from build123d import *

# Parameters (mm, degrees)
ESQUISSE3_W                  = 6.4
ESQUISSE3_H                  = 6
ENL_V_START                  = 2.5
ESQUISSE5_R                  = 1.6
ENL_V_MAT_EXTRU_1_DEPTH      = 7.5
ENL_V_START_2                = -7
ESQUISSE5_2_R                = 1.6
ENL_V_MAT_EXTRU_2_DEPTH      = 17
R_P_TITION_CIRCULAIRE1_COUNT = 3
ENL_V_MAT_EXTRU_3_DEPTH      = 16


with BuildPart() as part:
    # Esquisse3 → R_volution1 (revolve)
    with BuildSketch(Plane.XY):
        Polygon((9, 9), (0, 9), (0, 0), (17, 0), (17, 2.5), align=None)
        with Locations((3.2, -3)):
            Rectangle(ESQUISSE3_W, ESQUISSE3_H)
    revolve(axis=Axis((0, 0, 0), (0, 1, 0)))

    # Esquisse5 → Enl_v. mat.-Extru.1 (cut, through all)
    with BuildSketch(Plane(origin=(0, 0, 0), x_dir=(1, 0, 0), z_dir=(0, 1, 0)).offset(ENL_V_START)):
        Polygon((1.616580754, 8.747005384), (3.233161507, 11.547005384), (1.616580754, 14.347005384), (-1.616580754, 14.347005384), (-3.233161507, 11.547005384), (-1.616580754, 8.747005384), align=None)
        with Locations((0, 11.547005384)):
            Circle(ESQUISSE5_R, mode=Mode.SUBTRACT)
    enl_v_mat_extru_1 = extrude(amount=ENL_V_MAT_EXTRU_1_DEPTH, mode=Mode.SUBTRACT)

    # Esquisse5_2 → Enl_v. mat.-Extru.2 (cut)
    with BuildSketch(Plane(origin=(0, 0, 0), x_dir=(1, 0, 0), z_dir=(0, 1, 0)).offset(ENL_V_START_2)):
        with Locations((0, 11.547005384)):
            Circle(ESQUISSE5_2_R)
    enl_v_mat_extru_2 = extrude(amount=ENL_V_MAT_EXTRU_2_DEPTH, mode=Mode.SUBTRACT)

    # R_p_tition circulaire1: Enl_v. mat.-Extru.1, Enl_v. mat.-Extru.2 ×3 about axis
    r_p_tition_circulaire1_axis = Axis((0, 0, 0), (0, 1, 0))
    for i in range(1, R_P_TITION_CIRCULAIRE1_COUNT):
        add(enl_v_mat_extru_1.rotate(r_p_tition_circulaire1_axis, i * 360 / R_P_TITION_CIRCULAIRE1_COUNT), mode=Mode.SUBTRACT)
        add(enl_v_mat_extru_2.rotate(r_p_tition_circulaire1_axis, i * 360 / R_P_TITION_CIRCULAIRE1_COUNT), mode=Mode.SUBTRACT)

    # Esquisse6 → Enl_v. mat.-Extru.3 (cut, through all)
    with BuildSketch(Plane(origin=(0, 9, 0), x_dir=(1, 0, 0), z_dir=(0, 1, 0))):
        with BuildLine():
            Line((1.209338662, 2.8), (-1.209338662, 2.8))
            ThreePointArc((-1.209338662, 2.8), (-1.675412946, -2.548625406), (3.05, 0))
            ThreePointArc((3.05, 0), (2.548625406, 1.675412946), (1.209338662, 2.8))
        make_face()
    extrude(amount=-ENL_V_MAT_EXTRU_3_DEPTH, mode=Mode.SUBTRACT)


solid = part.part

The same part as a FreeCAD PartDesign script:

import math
import FreeCAD as App
import Part
import Sketcher

V = App.Vector
Q = App.Units.Quantity


def add_polygon(sketch, points):
    """Adds a closed chain of lines whose ends are joined by coincident constraints."""
    first, n = sketch.GeometryCount, len(points)
    for a, b in zip(points, points[1:] + points[:1]):
        sketch.addGeometry(Part.LineSegment(App.Vector(*a, 0), App.Vector(*b, 0)), False)
    for i in range(n):
        sketch.addConstraint(Sketcher.Constraint("Coincident", first + i, 2, first + (i + 1) % n, 1))

doc = App.newDocument("Part")
body = doc.addObject("PartDesign::Body", "Body")

# Sketch on XY plane
sketch1 = doc.addObject("Sketcher::SketchObject", "Sketch")
body.addObject(sketch1)
sketch1.AttachmentSupport = (doc.XY_Plane, [""])
sketch1.MapMode = "FlatFace"
add_polygon(sketch1, [(9, 9), (0, 9), (0, -6), (6.4, -6), (6.4, 0), (17, 0), (17, 2.5)])  # lines 0-6
sketch1.addConstraint([
    Sketcher.Constraint("Horizontal", 0),
    Sketcher.Constraint("Vertical", 1),
    Sketcher.Constraint("Horizontal", 2),
    Sketcher.Constraint("Vertical", 3),
    Sketcher.Constraint("Horizontal", 4),
    Sketcher.Constraint("Vertical", 5),
    Sketcher.Constraint("PointOnObject", 0, 2, -2),
    Sketcher.Constraint("PointOnObject", 3, 2, -1),
    Sketcher.Constraint("DistanceX", 0, 2, 0, 1, 9.0),
    Sketcher.Constraint("DistanceY", 1, 2, 1, 1, 15.0),
    Sketcher.Constraint("DistanceY", 3, 1, 3, 2, 6.0),
    Sketcher.Constraint("DistanceX", 2, 1, 2, 2, 6.4),
    Sketcher.Constraint("DistanceX", 4, 1, 4, 2, 10.6),
    Sketcher.Constraint("DistanceY", 5, 1, 5, 2, 2.5),
])
revolution = doc.addObject("PartDesign::Revolution", "Revolution")
body.addObject(revolution)
revolution.Profile = sketch1
revolution.ReferenceAxis = (sketch1, ["V_Axis"])
revolution.Angle = 360

# Sketch on XZ plane
sketch2 = doc.addObject("Sketcher::SketchObject", "Sketch001")
body.addObject(sketch2)
sketch2.AttachmentSupport = (doc.XZ_Plane, [""])
sketch2.MapMode = "FlatFace"
sketch2.AttachmentOffset = App.Placement(V(0, 0, -2.5), App.Rotation())
add_polygon(sketch2, [(1.616581, -8.747005), (3.233162, -11.547005), (1.616581, -14.347005), (-1.616581, -14.347005), (-3.233162, -11.547005), (-1.616581, -8.747005)])  # lines 0-5
sketch2.addGeometry(Part.Circle(V(0, -11.547005, 0), V(0, 0, 1), 1.6), False)  # 6
sketch2.addConstraint([
    Sketcher.Constraint("Horizontal", 2),
    Sketcher.Constraint("Horizontal", 5),
    Sketcher.Constraint("Symmetric", 0, 2, 3, 2, -2),
    Sketcher.Constraint("PointOnObject", 6, 3, -2),
    Sketcher.Constraint("Parallel", 0, 3),
    Sketcher.Constraint("Parallel", 1, 4),
    Sketcher.Constraint("Horizontal", 6, 3, 0, 2),
    Sketcher.Constraint("Vertical", 2, 2, 4, 2),
    Sketcher.Constraint("Vertical", 1, 2, 5, 2),
    Sketcher.Constraint("Diameter", 6, 3.2),
    Sketcher.Constraint("Angle", 0, Q("-60 deg")),
    Sketcher.Constraint("DistanceY", 1, 2, 0, 2, 2.8),
    Sketcher.Constraint("DistanceX", 2, 2, 2, 1, 3.233162),
    Sketcher.Constraint("DistanceY", 6, 3, -1, 1, 11.547005),
])
pocket1 = doc.addObject("PartDesign::Pocket", "Pocket")
body.addObject(pocket1)
pocket1.Profile = sketch2
pocket1.Type = "ThroughAll"

# Sketch on XZ plane
sketch3 = doc.addObject("Sketcher::SketchObject", "Sketch002")
body.addObject(sketch3)
sketch3.AttachmentSupport = (doc.XZ_Plane, [""])
sketch3.MapMode = "FlatFace"
sketch3.AttachmentOffset = App.Placement(V(0, 0, 7), App.Rotation())
sketch3.addGeometry(Part.Circle(V(0, -11.547005, 0), V(0, 0, 1), 1.6), False)
sketch3.addConstraint([
    Sketcher.Constraint("PointOnObject", 0, 3, -2),
    Sketcher.Constraint("Diameter", 0, 3.2),
    Sketcher.Constraint("DistanceY", 0, 3, -1, 1, 11.547005),
])
pocket2 = doc.addObject("PartDesign::Pocket", "Pocket001")
body.addObject(pocket2)
pocket2.Profile = sketch3
pocket2.Length = 17
doc.recompute()

polarpattern = doc.addObject("PartDesign::PolarPattern", "PolarPattern")
body.addObject(polarpattern)
polarpattern.Originals = [pocket1, pocket2]
polarpattern.Axis = (doc.Y_Axis, [""])
polarpattern.Angle = 360
polarpattern.Occurrences = 3
body.Tip = polarpattern

# Sketch on XZ plane
sketch4 = doc.addObject("Sketcher::SketchObject", "Sketch003")
body.addObject(sketch4)
sketch4.AttachmentSupport = (doc.XZ_Plane, [""])
sketch4.MapMode = "FlatFace"
sketch4.AttachmentOffset = App.Placement(V(0, 0, -9), App.Rotation())
sketch4.addGeometry([
    Part.LineSegment(V(1.209339, -2.8, 0), V(-1.209339, -2.8, 0)),
    Part.ArcOfCircle(Part.Circle(V(0, 0, 0), V(0, 0, 1), 3.05), math.radians(0), math.radians(246.640162)),
    Part.ArcOfCircle(Part.Circle(V(0, 0, 0), V(0, 0, 1), 3.05), math.radians(-66.640162), math.radians(0)),
], False)
sketch4.addConstraint([
    Sketcher.Constraint("Coincident", 0, 2, 1, 2),
    Sketcher.Constraint("Tangent", 1, 1, 2, 2),
    Sketcher.Constraint("Coincident", 2, 1, 0, 1),
    Sketcher.Constraint("Horizontal", 0),
    Sketcher.Constraint("Coincident", 1, 3, -1, 1),
    Sketcher.Constraint("Equal", 1, 2),
    Sketcher.Constraint("PointOnObject", 1, 1, -1),
    Sketcher.Constraint("Radius", 1, 3.05),
    Sketcher.Constraint("DistanceY", 0, 2, -1, 1, 2.8),
])
pocket3 = doc.addObject("PartDesign::Pocket", "Pocket002")
body.addObject(pocket3)
pocket3.Profile = sketch4
pocket3.Type = "ThroughAll"
pocket3.Reversed = True

doc.recompute()
